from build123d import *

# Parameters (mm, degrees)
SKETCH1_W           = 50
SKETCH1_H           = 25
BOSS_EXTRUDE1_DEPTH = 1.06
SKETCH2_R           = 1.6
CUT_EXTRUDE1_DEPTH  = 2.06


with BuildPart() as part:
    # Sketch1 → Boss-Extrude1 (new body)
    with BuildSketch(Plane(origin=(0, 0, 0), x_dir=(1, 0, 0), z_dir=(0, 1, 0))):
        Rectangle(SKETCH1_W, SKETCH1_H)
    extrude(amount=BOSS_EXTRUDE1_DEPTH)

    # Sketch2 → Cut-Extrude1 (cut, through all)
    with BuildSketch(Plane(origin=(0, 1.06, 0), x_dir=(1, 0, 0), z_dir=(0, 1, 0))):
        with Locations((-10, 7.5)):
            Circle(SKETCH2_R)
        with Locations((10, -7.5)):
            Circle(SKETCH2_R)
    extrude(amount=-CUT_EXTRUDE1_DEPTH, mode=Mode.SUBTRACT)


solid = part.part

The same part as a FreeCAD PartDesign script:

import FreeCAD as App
import Part
import Sketcher

doc = App.newDocument("Part")
params = doc.addObject("Spreadsheet::Sheet", "Params")
for row, (alias, value) in enumerate([
    ("sketch1_width", "50 mm"),
    ("sketch1_height", "25 mm"),
    ("pad1_length", "1.06 mm"),
    ("sketch2_diameter", "3.2 mm"),
], start=1):
    params.set(f"A{row}", alias)
    params.set(f"B{row}", "=" + value)
    params.setAlias(f"B{row}", alias)

body = doc.addObject("PartDesign::Body", "Body")

# Sketch on XZ plane
sketch1 = doc.addObject("Sketcher::SketchObject", "Sketch")
body.addObject(sketch1)
sketch1.AttachmentSupport = (doc.XZ_Plane, [""])
sketch1.MapMode = "FlatFace"
sketch1.addGeometry(Part.LineSegment(App.Vector(-25, -12, 0), App.Vector(-25, 12, 0)), False)
sketch1.addGeometry(Part.LineSegment(App.Vector(-25, 12, 0), App.Vector(25, 12, 0)), False)
sketch1.addGeometry(Part.LineSegment(App.Vector(25, 12, 0), App.Vector(25, -12, 0)), False)
sketch1.addGeometry(Part.LineSegment(App.Vector(25, -12, 0), App.Vector(-25, -12, 0)), False)
sketch1.addConstraint(Sketcher.Constraint("Coincident", 0, 2, 1, 1))
sketch1.addConstraint(Sketcher.Constraint("Coincident", 1, 2, 2, 1))
sketch1.addConstraint(Sketcher.Constraint("Coincident", 2, 2, 3, 1))
sketch1.addConstraint(Sketcher.Constraint("Coincident", 3, 2, 0, 1))
sketch1.addConstraint(Sketcher.Constraint("Vertical", 0))
sketch1.addConstraint(Sketcher.Constraint("Horizontal", 1))
sketch1.addConstraint(Sketcher.Constraint("Vertical", 2))
sketch1.addConstraint(Sketcher.Constraint("Horizontal", 3))
sketch1.addConstraint(Sketcher.Constraint("Symmetric", 0, 2, 2, 2, -1, 1))
sketch1.addConstraint(Sketcher.Constraint("DistanceX", 1, 1, 1, 2, 50.0))
sketch1.addConstraint(Sketcher.Constraint("DistanceY", 0, 1, 0, 2, 25.0))
sketch1.setExpression("Constraints[9]", "Params.sketch1_width")
sketch1.setExpression("Constraints[10]", "Params.sketch1_height")
pad1 = doc.addObject("PartDesign::Pad", "Pad")
body.addObject(pad1)
pad1.Profile = sketch1
pad1.setExpression("Length", "Params.pad1_length")
pad1.Reversed = True

# Sketch on XZ plane
sketch2 = doc.addObject("Sketcher::SketchObject", "Sketch001")
body.addObject(sketch2)
sketch2.AttachmentSupport = (doc.XZ_Plane, [""])
sketch2.MapMode = "FlatFace"
sketch2.AttachmentOffset = App.Placement(App.Vector(0, 0, -1.06), App.Rotation())
sketch2.addGeometry(Part.Circle(App.Vector(-10, -7.5, 0), App.Vector(0, 0, 1), 1.6), False)
sketch2.addGeometry(Part.Circle(App.Vector(10, 7.5, 0), App.Vector(0, 0, 1), 1.6), False)
sketch2.addConstraint(Sketcher.Constraint("Equal", 0, 1))
sketch2.addConstraint(Sketcher.Constraint("Symmetric", 0, 3, 1, 3, -1, 1))
sketch2.addConstraint(Sketcher.Constraint("Diameter", 0, 3.2))
sketch2.addConstraint(Sketcher.Constraint("DistanceX", 0, 3, -1, 1, 10.0))
sketch2.addConstraint(Sketcher.Constraint("DistanceY", 0, 3, 1, 3, 15.0))
sketch2.setExpression("Constraints[2]", "Params.sketch2_diameter")
pocket1 = doc.addObject("PartDesign::Pocket", "Pocket")
body.addObject(pocket1)
pocket1.Profile = sketch2
pocket1.Type = "ThroughAll"
pocket1.Reversed = True

doc.recompute()
